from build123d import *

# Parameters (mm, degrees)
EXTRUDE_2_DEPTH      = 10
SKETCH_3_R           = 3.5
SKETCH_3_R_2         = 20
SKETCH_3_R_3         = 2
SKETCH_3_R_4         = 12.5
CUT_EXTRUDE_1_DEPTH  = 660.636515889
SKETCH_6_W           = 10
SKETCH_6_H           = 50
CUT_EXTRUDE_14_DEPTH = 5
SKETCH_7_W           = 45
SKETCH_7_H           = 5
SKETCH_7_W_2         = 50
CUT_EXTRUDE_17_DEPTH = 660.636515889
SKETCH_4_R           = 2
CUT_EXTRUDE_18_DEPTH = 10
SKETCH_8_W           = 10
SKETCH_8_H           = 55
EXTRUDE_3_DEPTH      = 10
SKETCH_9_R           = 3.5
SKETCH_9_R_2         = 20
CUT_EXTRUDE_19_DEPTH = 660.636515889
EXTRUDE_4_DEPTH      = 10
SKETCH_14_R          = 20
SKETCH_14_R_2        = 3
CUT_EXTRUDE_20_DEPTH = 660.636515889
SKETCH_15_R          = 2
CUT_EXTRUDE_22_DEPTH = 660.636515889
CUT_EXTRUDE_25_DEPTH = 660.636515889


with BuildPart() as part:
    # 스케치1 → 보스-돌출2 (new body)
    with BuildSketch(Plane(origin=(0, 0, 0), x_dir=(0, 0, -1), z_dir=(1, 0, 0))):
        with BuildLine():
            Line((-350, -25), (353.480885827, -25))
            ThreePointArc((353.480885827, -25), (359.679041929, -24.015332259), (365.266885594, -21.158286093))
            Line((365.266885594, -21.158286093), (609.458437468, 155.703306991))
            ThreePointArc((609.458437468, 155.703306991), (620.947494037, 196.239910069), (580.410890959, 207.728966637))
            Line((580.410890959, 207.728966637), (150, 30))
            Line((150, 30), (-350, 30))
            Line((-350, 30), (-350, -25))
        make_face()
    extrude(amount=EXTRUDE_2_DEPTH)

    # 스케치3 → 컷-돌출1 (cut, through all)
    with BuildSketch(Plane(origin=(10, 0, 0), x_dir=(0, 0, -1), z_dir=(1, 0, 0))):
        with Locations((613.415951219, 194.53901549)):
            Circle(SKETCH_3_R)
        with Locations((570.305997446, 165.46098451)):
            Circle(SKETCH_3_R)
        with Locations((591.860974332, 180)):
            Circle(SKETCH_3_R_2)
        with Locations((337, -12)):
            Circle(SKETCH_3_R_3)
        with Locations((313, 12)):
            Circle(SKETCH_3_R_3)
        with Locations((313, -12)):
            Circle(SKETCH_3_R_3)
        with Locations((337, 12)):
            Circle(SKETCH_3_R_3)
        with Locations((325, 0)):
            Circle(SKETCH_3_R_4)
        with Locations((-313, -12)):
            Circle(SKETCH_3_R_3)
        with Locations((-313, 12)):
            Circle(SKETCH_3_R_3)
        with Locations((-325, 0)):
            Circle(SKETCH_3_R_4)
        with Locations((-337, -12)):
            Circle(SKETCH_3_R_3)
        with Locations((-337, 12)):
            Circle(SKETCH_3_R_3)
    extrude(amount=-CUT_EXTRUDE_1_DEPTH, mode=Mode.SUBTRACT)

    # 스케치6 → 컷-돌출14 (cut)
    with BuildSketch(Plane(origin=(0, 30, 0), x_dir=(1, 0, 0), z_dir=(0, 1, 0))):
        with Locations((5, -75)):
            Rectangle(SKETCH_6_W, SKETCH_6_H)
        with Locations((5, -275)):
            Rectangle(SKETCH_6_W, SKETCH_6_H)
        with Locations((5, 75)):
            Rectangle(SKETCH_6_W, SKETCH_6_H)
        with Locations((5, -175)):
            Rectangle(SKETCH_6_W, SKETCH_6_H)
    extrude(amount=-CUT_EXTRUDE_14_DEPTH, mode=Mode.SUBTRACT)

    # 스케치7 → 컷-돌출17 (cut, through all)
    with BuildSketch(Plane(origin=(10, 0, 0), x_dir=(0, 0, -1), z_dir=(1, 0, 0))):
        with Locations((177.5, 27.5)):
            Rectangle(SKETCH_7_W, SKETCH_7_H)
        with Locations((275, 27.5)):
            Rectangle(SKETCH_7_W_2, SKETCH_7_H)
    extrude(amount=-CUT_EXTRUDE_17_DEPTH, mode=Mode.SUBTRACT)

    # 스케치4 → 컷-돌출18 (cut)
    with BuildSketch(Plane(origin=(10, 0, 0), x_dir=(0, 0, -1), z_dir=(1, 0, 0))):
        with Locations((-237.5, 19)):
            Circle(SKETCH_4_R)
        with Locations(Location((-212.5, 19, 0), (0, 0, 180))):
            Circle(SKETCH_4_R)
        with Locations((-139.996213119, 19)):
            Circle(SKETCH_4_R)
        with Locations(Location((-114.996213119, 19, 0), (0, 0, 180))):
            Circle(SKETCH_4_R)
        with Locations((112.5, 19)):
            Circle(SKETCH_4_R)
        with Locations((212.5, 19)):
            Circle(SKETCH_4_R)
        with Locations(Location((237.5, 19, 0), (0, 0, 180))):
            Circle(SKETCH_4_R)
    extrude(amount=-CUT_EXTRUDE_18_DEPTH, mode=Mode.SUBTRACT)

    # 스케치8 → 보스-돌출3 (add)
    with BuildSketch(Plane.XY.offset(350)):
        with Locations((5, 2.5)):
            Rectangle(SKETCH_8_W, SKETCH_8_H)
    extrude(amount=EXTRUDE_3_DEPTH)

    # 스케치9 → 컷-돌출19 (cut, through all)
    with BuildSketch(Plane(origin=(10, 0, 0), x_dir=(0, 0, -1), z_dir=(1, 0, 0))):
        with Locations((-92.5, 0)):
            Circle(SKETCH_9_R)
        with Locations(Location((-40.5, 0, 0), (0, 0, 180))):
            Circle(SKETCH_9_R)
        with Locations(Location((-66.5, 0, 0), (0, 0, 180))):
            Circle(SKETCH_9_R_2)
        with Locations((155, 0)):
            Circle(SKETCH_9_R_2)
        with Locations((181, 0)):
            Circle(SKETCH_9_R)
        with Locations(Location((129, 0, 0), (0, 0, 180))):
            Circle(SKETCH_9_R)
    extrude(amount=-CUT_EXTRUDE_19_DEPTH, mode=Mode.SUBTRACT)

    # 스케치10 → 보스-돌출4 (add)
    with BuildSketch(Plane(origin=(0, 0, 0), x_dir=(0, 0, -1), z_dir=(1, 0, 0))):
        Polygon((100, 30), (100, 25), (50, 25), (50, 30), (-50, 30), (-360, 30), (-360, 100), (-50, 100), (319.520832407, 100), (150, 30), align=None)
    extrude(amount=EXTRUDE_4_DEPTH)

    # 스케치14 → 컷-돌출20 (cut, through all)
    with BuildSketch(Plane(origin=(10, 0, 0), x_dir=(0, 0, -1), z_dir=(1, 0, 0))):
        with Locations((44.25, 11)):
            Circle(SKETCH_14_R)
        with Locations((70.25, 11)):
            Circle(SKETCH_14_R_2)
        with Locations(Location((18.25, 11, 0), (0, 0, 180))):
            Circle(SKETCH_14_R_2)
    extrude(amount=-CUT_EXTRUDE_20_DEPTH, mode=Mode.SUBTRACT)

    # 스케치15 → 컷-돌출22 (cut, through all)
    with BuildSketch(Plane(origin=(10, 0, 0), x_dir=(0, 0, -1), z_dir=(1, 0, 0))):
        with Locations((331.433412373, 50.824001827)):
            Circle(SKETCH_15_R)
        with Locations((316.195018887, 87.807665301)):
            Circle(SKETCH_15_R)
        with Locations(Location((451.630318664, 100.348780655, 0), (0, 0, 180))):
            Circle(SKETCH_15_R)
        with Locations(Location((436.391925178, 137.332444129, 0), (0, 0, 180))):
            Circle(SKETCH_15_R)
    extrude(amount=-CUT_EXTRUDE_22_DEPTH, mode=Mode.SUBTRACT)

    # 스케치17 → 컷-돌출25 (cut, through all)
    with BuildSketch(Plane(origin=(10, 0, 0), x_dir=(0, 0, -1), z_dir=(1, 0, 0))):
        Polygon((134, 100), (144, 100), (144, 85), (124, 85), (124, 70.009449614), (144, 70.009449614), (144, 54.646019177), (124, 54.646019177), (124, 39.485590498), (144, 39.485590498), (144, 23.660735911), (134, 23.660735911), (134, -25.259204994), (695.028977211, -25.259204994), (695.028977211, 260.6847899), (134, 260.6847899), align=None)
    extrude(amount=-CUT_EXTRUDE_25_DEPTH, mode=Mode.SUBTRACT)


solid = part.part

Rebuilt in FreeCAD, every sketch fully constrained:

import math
import FreeCAD as App
import Part
import Sketcher


def add_polygon(sketch, points):
    """Adds a closed chain of lines whose ends are joined by coincident constraints."""
    first, n = sketch.GeometryCount, len(points)
    for a, b in zip(points, points[1:] + points[:1]):
        sketch.addGeometry(Part.LineSegment(App.Vector(*a, 0), App.Vector(*b, 0)), False)
    for i in range(n):
        sketch.addConstraint(Sketcher.Constraint("Coincident", first + i, 2, first + (i + 1) % n, 1))

doc = App.newDocument("Part")
body = doc.addObject("PartDesign::Body", "Body")

sketch1 = doc.addObject("Sketcher::SketchObject", "Sketch")
body.addObject(sketch1)
sketch1.AttachmentSupport = (doc.YZ_Plane, [""])
sketch1.MapMode = "FlatFace"
sketch1.addGeometry([
    Part.LineSegment(App.Vector(-25, 350, 0), App.Vector(-25, -353, 0)),
    Part.ArcOfCircle(Part.Circle(App.Vector(-5, -353, 0), App.Vector(0, 0, 1), 20), math.radians(-180), math.radians(-144)),
    Part.LineSegment(App.Vector(-21, -365, 0), App.Vector(156, -609, 0)),
    Part.ArcOfCircle(Part.Circle(App.Vector(182, -595, 0), App.Vector(0, 0, 1), 30), math.radians(-151), math.radians(29)),
    Part.LineSegment(App.Vector(208, -580, 0), App.Vector(30, -150, 0)),
    Part.LineSegment(App.Vector(30, -150, 0), App.Vector(30, 350, 0)),
    Part.LineSegment(App.Vector(30, 350, 0), App.Vector(-25, 350, 0)),
], False)
sketch1.addConstraint([
    Sketcher.Constraint("Tangent", 0, 2, 1, 1),
    Sketcher.Constraint("Coincident", 1, 2, 2, 1),
    Sketcher.Constraint("Coincident", 2, 2, 3, 1),
    Sketcher.Constraint("Coincident", 3, 2, 4, 1),
    Sketcher.Constraint("Coincident", 4, 2, 5, 1),
    Sketcher.Constraint("Coincident", 5, 2, 6, 1),
    Sketcher.Constraint("Coincident", 6, 2, 0, 1),
    Sketcher.Constraint("Vertical", 0),
    Sketcher.Constraint("Vertical", 5),
    Sketcher.Constraint("Horizontal", 6),
    Sketcher.Constraint("Radius", 1, 20.0),
    Sketcher.Constraint("DistanceX", 6, 2, 6, 1, 55.0),
    Sketcher.Constraint("DistanceY", 5, 1, 5, 2, 500.0),
    Sketcher.Constraint("DistanceX", 1, 3, -1, 1, 5.0),
    Sketcher.Constraint("DistanceY", 4, 2, -1, 1, 150.0),
    Sketcher.Constraint("Radius", 3, 29.792739),
    Sketcher.Constraint("DistanceY", 1, 2, 0, 2, 11.786),
    Sketcher.Constraint("DistanceY", 0, 2, 0, 1, 703.480886),
    Sketcher.Constraint("DistanceY", 3, 2, -1, 1, 580.410891),
    Sketcher.Constraint("DistanceY", 3, 3, 1, 3, 241.453778),
    Sketcher.Constraint("DistanceX", 2, 2, 3, 3, 26.01283),
    Sketcher.Constraint("Distance", 2, 301.512085),
])
pad1 = doc.addObject("PartDesign::Pad", "Pad")
body.addObject(pad1)
pad1.Profile = sketch1
pad1.Length = 10

sketch2 = doc.addObject("Sketcher::SketchObject", "Sketch001")
body.addObject(sketch2)
sketch2.AttachmentSupport = (doc.YZ_Plane, [""])
sketch2.MapMode = "FlatFace"
sketch2.AttachmentOffset = App.Placement(App.Vector(0, 0, 10), App.Rotation())
sketch2.addGeometry([
    Part.Circle(App.Vector(194.5, -613.4, 0), App.Vector(0, 0, 1), 3.5),
    Part.Circle(App.Vector(165.5, -570.3, 0), App.Vector(0, 0, 1), 3.5),
    Part.Circle(App.Vector(180, -591.9, 0), App.Vector(0, 0, 1), 20),
    Part.Circle(App.Vector(-12, -337, 0), App.Vector(0, 0, 1), 2),
    Part.Circle(App.Vector(12, -313, 0), App.Vector(0, 0, 1), 2),
    Part.Circle(App.Vector(-12, -313, 0), App.Vector(0, 0, 1), 2),
    Part.Circle(App.Vector(12, -337, 0), App.Vector(0, 0, 1), 2),
    Part.Circle(App.Vector(0, -325, 0), App.Vector(0, 0, 1), 12.5),
    Part.Circle(App.Vector(-12, 313, 0), App.Vector(0, 0, 1), 2),
    Part.Circle(App.Vector(12, 313, 0), App.Vector(0, 0, 1), 2),
    Part.Circle(App.Vector(0, 325, 0), App.Vector(0, 0, 1), 12.5),
    Part.Circle(App.Vector(-12, 337, 0), App.Vector(0, 0, 1), 2),
    Part.Circle(App.Vector(12, 337, 0), App.Vector(0, 0, 1), 2),
], False)
sketch2.addConstraint([
    Sketcher.Constraint("Equal", 0, 1),
    Sketcher.Constraint("Equal", 3, 4),
    Sketcher.Constraint("Equal", 4, 5),
    Sketcher.Constraint("Equal", 5, 6),
    Sketcher.Constraint("Equal", 6, 8),
    Sketcher.Constraint("Equal", 8, 9),
    Sketcher.Constraint("Equal", 7, 10),
    Sketcher.Constraint("Equal", 9, 11),
    Sketcher.Constraint("Equal", 11, 12),
    Sketcher.Constraint("Symmetric", 4, 3, 8, 3, -1, 1),
    Sketcher.Constraint("Symmetric", 5, 3, 9, 3, -1, 1),
    Sketcher.Constraint("Symmetric", 7, 3, 10, 3, -1, 1),
    Sketcher.Constraint("Symmetric", 6, 3, 11, 3, -1, 1),
    Sketcher.Constraint("Symmetric", 3, 3, 12, 3, -1, 1),
    Sketcher.Constraint("Symmetric", 4, 3, 5, 3, -2),
    Sketcher.Constraint("Symmetric", 3, 3, 6, 3, -2),
    Sketcher.Constraint("PointOnObject", 7, 3, -2),
    Sketcher.Constraint("Vertical", 3, 3, 5, 3),
    Sketcher.Constraint("Diameter", 0, 7.0),
    Sketcher.Constraint("Diameter", 2, 40.0),
    Sketcher.Constraint("Diameter", 3, 4.0),
    Sketcher.Constraint("Diameter", 7, 25.0),
    Sketcher.Constraint("DistanceX", -1, 1, 2, 3, 180.0),
    Sketcher.Constraint("DistanceX", 3, 3, -1, 1, 12.0),
    Sketcher.Constraint("DistanceY", 3, 3, -1, 1, 337.0),
    Sketcher.Constraint("DistanceY", 4, 3, -1, 1, 313.0),
    Sketcher.Constraint("DistanceY", 7, 3, -1, 1, 325.0),
    Sketcher.Constraint("DistanceY", 0, 3, -1, 1, 613.415951),
    Sketcher.Constraint("DistanceX", 1, 3, 0, 3, 29.078031),
    Sketcher.Constraint("DistanceX", -1, 1, 0, 3, 194.539015),
    Sketcher.Constraint("DistanceY", 1, 3, -1, 1, 570.305997),
    Sketcher.Constraint("DistanceY", 2, 3, -1, 1, 591.860974),
])
pocket1 = doc.addObject("PartDesign::Pocket", "Pocket")
body.addObject(pocket1)
pocket1.Profile = sketch2
pocket1.Type = "ThroughAll"

sketch3 = doc.addObject("Sketcher::SketchObject", "Sketch002")
body.addObject(sketch3)
sketch3.AttachmentSupport = (doc.XZ_Plane, [""])
sketch3.MapMode = "FlatFace"
sketch3.AttachmentOffset = App.Placement(App.Vector(0, 0, -30), App.Rotation())
add_polygon(sketch3, [(0, 50), (0, 100), (10, 100), (10, 50)])
add_polygon(sketch3, [(0, 250), (0, 300), (10, 300), (10, 250)])
add_polygon(sketch3, [(0, -100), (0, -50), (10, -50), (10, -100)])
add_polygon(sketch3, [(0, 150), (0, 200), (10, 200), (10, 150)])
sketch3.addConstraint([
    Sketcher.Constraint("Vertical", 0),
    Sketcher.Constraint("Horizontal", 1),
    Sketcher.Constraint("Vertical", 2),
    Sketcher.Constraint("Horizontal", 3),
    Sketcher.Constraint("Vertical", 4),
    Sketcher.Constraint("Horizontal", 5),
    Sketcher.Constraint("Vertical", 6),
    Sketcher.Constraint("Horizontal", 7),
    Sketcher.Constraint("Vertical", 8),
    Sketcher.Constraint("Horizontal", 9),
    Sketcher.Constraint("Vertical", 10),
    Sketcher.Constraint("Horizontal", 11),
    Sketcher.Constraint("Vertical", 12),
    Sketcher.Constraint("Horizontal", 13),
    Sketcher.Constraint("Vertical", 14),
    Sketcher.Constraint("Horizontal", 15),
    Sketcher.Constraint("Symmetric", 3, 2, 8, 2, -1, 1),
    Sketcher.Constraint("Symmetric", 1, 2, 10, 2, -1),
    Sketcher.Constraint("PointOnObject", 0, 2, -2),
    Sketcher.Constraint("PointOnObject", 4, 2, -2),
    Sketcher.Constraint("PointOnObject", 12, 2, -2),
    Sketcher.Constraint("Vertical", 2, 2, 5, 2),
    Sketcher.Constraint("Vertical", 10, 2, 13, 2),
    Sketcher.Constraint("Equal", 2, 4),
    Sketcher.Constraint("Equal", 10, 12),
    Sketcher.Constraint("DistanceX", 1, 1, 1, 2, 10.0),
    Sketcher.Constraint("DistanceY", 0, 1, 0, 2, 50.0),
    Sketcher.Constraint("DistanceY", -1, 1, 0, 2, 100.0),
    Sketcher.Constraint("DistanceY", -1, 1, 4, 2, 300.0),
    Sketcher.Constraint("DistanceY", -1, 1, 12, 2, 200.0),
])
pocket2 = doc.addObject("PartDesign::Pocket", "Pocket001")
body.addObject(pocket2)
pocket2.Profile = sketch3
pocket2.Length = 5
pocket2.Reversed = True

sketch4 = doc.addObject("Sketcher::SketchObject", "Sketch003")
body.addObject(sketch4)
sketch4.AttachmentSupport = (doc.YZ_Plane, [""])
sketch4.MapMode = "FlatFace"
sketch4.AttachmentOffset = App.Placement(App.Vector(0, 0, 10), App.Rotation())
add_polygon(sketch4, [(30, -155), (25, -155), (25, -200), (30, -200)])
add_polygon(sketch4, [(30, -250), (25, -250), (25, -300), (30, -300)])
sketch4.addConstraint([
    Sketcher.Constraint("Horizontal", 0),
    Sketcher.Constraint("Vertical", 1),
    Sketcher.Constraint("Horizontal", 2),
    Sketcher.Constraint("Vertical", 3),
    Sketcher.Constraint("Horizontal", 4),
    Sketcher.Constraint("Vertical", 5),
    Sketcher.Constraint("Horizontal", 6),
    Sketcher.Constraint("Vertical", 7),
    Sketcher.Constraint("Vertical", 1, 2, 4, 2),
    Sketcher.Constraint("Vertical", 3, 2, 6, 2),
    Sketcher.Constraint("DistanceX", 0, 2, 0, 1, 5.0),
    Sketcher.Constraint("DistanceY", 1, 2, 1, 1, 45.0),
    Sketcher.Constraint("DistanceY", 5, 2, 5, 1, 50.0),
    Sketcher.Constraint("DistanceX", -1, 1, 0, 2, 25.0),
    Sketcher.Constraint("DistanceY", 0, 2, -1, 1, 155.0),
    Sketcher.Constraint("DistanceY", 4, 2, -1, 1, 250.0),
])
pocket3 = doc.addObject("PartDesign::Pocket", "Pocket002")
body.addObject(pocket3)
pocket3.Profile = sketch4
pocket3.Type = "ThroughAll"

sketch5 = doc.addObject("Sketcher::SketchObject", "Sketch004")
body.addObject(sketch5)
sketch5.AttachmentSupport = (doc.YZ_Plane, [""])
sketch5.MapMode = "FlatFace"
sketch5.AttachmentOffset = App.Placement(App.Vector(0, 0, 10), App.Rotation())
sketch5.addGeometry([
    Part.Circle(App.Vector(19, 237.5, 0), App.Vector(0, 0, 1), 2),
    Part.Circle(App.Vector(19, 212.5, 0), App.Vector(0, 0, 1), 2),
    Part.Circle(App.Vector(19, 140, 0), App.Vector(0, 0, 1), 2),
    Part.Circle(App.Vector(19, 115, 0), App.Vector(0, 0, 1), 2),
    Part.Circle(App.Vector(19, -112.5, 0), App.Vector(0, 0, 1), 2),
    Part.Circle(App.Vector(19, -212.5, 0), App.Vector(0, 0, 1), 2),
    Part.Circle(App.Vector(19, -237.5, 0), App.Vector(0, 0, 1), 2),
], False)
sketch5.addConstraint([
    Sketcher.Constraint("Equal", 0, 1),
    Sketcher.Constraint("Equal", 1, 2),
    Sketcher.Constraint("Equal", 2, 3),
    Sketcher.Constraint("Equal", 3, 4),
    Sketcher.Constraint("Equal", 4, 5),
    Sketcher.Constraint("Equal", 5, 6),
    Sketcher.Constraint("Symmetric", 1, 3, 5, 3, -1),
    Sketcher.Constraint("Symmetric", 0, 3, 6, 3, -1),
    Sketcher.Constraint("Vertical", 0, 3, 1, 3),
    Sketcher.Constraint("Vertical", 1, 3, 2, 3),
    Sketcher.Constraint("Vertical", 2, 3, 3, 3),
    Sketcher.Constraint("Vertical", 3, 3, 4, 3),
    Sketcher.Constraint("Diameter", 0, 4.0),
    Sketcher.Constraint("DistanceX", -1, 1, 0, 3, 19.0),
    Sketcher.Constraint("DistanceY", 1, 3, 0, 3, 25.0),
    Sketcher.Constraint("DistanceY", 3, 3, 2, 3, 25.0),
    Sketcher.Constraint("DistanceY", 4, 3, 1, 3, 325.0),
    Sketcher.Constraint("DistanceY", 5, 3, 4, 3, 100.0),
    Sketcher.Constraint("DistanceY", -1, 1, 2, 3, 139.996213),
])
pocket4 = doc.addObject("PartDesign::Pocket", "Pocket003")
body.addObject(pocket4)
pocket4.Profile = sketch5
pocket4.Length = 10

sketch6 = doc.addObject("Sketcher::SketchObject", "Sketch005")
body.addObject(sketch6)
sketch6.AttachmentSupport = (doc.XY_Plane, [""])
sketch6.MapMode = "FlatFace"
sketch6.AttachmentOffset = App.Placement(App.Vector(0, 0, 350), App.Rotation())
add_polygon(sketch6, [(0, 30), (0, -25), (10, -25), (10, 30)])
sketch6.addConstraint([
    Sketcher.Constraint("Vertical", 0),
    Sketcher.Constraint("Horizontal", 1),
    Sketcher.Constraint("Vertical", 2),
    Sketcher.Constraint("Horizontal", 3),
    Sketcher.Constraint("PointOnObject", 0, 2, -2),
    Sketcher.Constraint("DistanceX", 1, 1, 1, 2, 10.0),
    Sketcher.Constraint("DistanceY", 0, 2, 0, 1, 55.0),
    Sketcher.Constraint("DistanceY", 0, 2, -1, 1, 25.0),
])
pad2 = doc.addObject("PartDesign::Pad", "Pad001")
body.addObject(pad2)
pad2.Profile = sketch6
pad2.Length = 10

sketch7 = doc.addObject("Sketcher::SketchObject", "Sketch006")
body.addObject(sketch7)
sketch7.AttachmentSupport = (doc.YZ_Plane, [""])
sketch7.MapMode = "FlatFace"
sketch7.AttachmentOffset = App.Placement(App.Vector(0, 0, 10), App.Rotation())
sketch7.addGeometry([
    Part.Circle(App.Vector(0, 92.5, 0), App.Vector(0, 0, 1), 3.5),
    Part.Circle(App.Vector(0, 40.5, 0), App.Vector(0, 0, 1), 3.5),
    Part.Circle(App.Vector(0, 66.5, 0), App.Vector(0, 0, 1), 20),
    Part.Circle(App.Vector(0, -155, 0), App.Vector(0, 0, 1), 20),
    Part.Circle(App.Vector(0, -181, 0), App.Vector(0, 0, 1), 3.5),
    Part.Circle(App.Vector(0, -129, 0), App.Vector(0, 0, 1), 3.5),
], False)
sketch7.addConstraint([
    Sketcher.Constraint("Equal", 0, 1),
    Sketcher.Constraint("Equal", 2, 3),
    Sketcher.Constraint("Equal", 1, 4),
    Sketcher.Constraint("Equal", 4, 5),
    Sketcher.Constraint("PointOnObject", 0, 3, -2),
    Sketcher.Constraint("PointOnObject", 1, 3, -2),
    Sketcher.Constraint("PointOnObject", 2, 3, -2),
    Sketcher.Constraint("PointOnObject", 3, 3, -2),
    Sketcher.Constraint("PointOnObject", 4, 3, -2),
    Sketcher.Constraint("PointOnObject", 5, 3, -2),
    Sketcher.Constraint("Diameter", 0, 7.0),
    Sketcher.Constraint("Diameter", 2, 40.0),
    Sketcher.Constraint("DistanceY", 3, 3, -1, 1, 155.0),
    Sketcher.Constraint("DistanceY", 4, 3, -1, 1, 181.0),
    Sketcher.Constraint("DistanceY", 5, 3, -1, 1, 129.0),
    Sketcher.Constraint("DistanceY", 1, 3, 0, 3, 52.0),
    Sketcher.Constraint("DistanceY", 2, 3, 0, 3, 26.0),
    Sketcher.Constraint("DistanceY", -1, 1, 0, 3, 92.5),
])
pocket5 = doc.addObject("PartDesign::Pocket", "Pocket004")
body.addObject(pocket5)
pocket5.Profile = sketch7
pocket5.Type = "ThroughAll"

sketch8 = doc.addObject("Sketcher::SketchObject", "Sketch007")
body.addObject(sketch8)
sketch8.AttachmentSupport = (doc.YZ_Plane, [""])
sketch8.MapMode = "FlatFace"
add_polygon(sketch8, [(25, -100), (30, -100), (30, -150), (100, -320), (100, 360), (30, 360), (30, -50), (25, -50)])
sketch8.addConstraint([
    Sketcher.Constraint("Horizontal", 0),
    Sketcher.Constraint("Vertical", 1),
    Sketcher.Constraint("Vertical", 3),
    Sketcher.Constraint("Horizontal", 4),
    Sketcher.Constraint("Vertical", 5),
    Sketcher.Constraint("Horizontal", 6),
    Sketcher.Constraint("Vertical", 7),
    Sketcher.Constraint("Vertical", 1, 2, 4, 2),
    Sketcher.Constraint("Equal", 1, 7),
    Sketcher.Constraint("DistanceX", 0, 1, 0, 2, 5.0),
    Sketcher.Constraint("DistanceX", 4, 2, 4, 1, 70.0),
    Sketcher.Constraint("DistanceY", 1, 2, 1, 1, 50.0),
    Sketcher.Constraint("DistanceY", 5, 2, 5, 1, 410.0),
    Sketcher.Constraint("DistanceX", -1, 1, 0, 2, 30.0),
    Sketcher.Constraint("DistanceY", 0, 2, -1, 1, 100.0),
    Sketcher.Constraint("Distance", 2, 183.404778),
])
pad3 = doc.addObject("PartDesign::Pad", "Pad002")
body.addObject(pad3)
pad3.Profile = sketch8
pad3.Length = 10

sketch9 = doc.addObject("Sketcher::SketchObject", "Sketch008")
body.addObject(sketch9)
sketch9.AttachmentSupport = (doc.YZ_Plane, [""])
sketch9.MapMode = "FlatFace"
sketch9.AttachmentOffset = App.Placement(App.Vector(0, 0, 10), App.Rotation())
sketch9.addGeometry([
    Part.Circle(App.Vector(11, -44.2, 0), App.Vector(0, 0, 1), 20),
    Part.Circle(App.Vector(11, -70.2, 0), App.Vector(0, 0, 1), 3),
    Part.Circle(App.Vector(11, -18.2, 0), App.Vector(0, 0, 1), 3),
], False)
sketch9.addConstraint([
    Sketcher.Constraint("Equal", 1, 2),
    Sketcher.Constraint("Vertical", 0, 3, 1, 3),
    Sketcher.Constraint("Vertical", 1, 3, 2, 3),
    Sketcher.Constraint("Diameter", 0, 40.0),
    Sketcher.Constraint("Diameter", 1, 6.0),
    Sketcher.Constraint("DistanceX", -1, 1, 0, 3, 11.0),
    Sketcher.Constraint("DistanceY", 1, 3, 0, 3, 26.0),
    Sketcher.Constraint("DistanceY", 0, 3, 2, 3, 26.0),
    Sketcher.Constraint("DistanceY", 0, 3, -1, 1, 44.25),
])
pocket6 = doc.addObject("PartDesign::Pocket", "Pocket005")
body.addObject(pocket6)
pocket6.Profile = sketch9
pocket6.Type = "ThroughAll"

sketch10 = doc.addObject("Sketcher::SketchObject", "Sketch009")
body.addObject(sketch10)
sketch10.AttachmentSupport = (doc.YZ_Plane, [""])
sketch10.MapMode = "FlatFace"
sketch10.AttachmentOffset = App.Placement(App.Vector(0, 0, 10), App.Rotation())
sketch10.addGeometry([
    Part.Circle(App.Vector(50.8, -331.4, 0), App.Vector(0, 0, 1), 2),
    Part.Circle(App.Vector(87.8, -316.2, 0), App.Vector(0, 0, 1), 2),
    Part.Circle(App.Vector(100.3, -451.6, 0), App.Vector(0, 0, 1), 2),
    Part.Circle(App.Vector(137.3, -436.4, 0), App.Vector(0, 0, 1), 2),
], False)
sketch10.addConstraint([
    Sketcher.Constraint("Equal", 0, 1),
    Sketcher.Constraint("Equal", 1, 2),
    Sketcher.Constraint("Equal", 2, 3),
    Sketcher.Constraint("Diameter", 0, 4.0),
    Sketcher.Constraint("DistanceX", -1, 1, 0, 3, 50.824002),
    Sketcher.Constraint("DistanceY", 2, 3, 1, 3, 135.4353),
    Sketcher.Constraint("DistanceY", 1, 3, -1, 1, 316.195019),
    Sketcher.Constraint("DistanceX", -1, 1, 2, 3, 100.348781),
    Sketcher.Constraint("DistanceX", 1, 3, 3, 3, 49.524779),
    Sketcher.Constraint("DistanceY", 0, 3, -1, 1, 331.433412),
    Sketcher.Constraint("DistanceX", -1, 1, 1, 3, 87.807665),
    Sketcher.Constraint("DistanceY", 3, 3, -1, 1, 436.391925),
])
pocket7 = doc.addObject("PartDesign::Pocket", "Pocket006")
body.addObject(pocket7)
pocket7.Profile = sketch10
pocket7.Type = "ThroughAll"

sketch11 = doc.addObject("Sketcher::SketchObject", "Sketch010")
body.addObject(sketch11)
sketch11.AttachmentSupport = (doc.YZ_Plane, [""])
sketch11.MapMode = "FlatFace"
sketch11.AttachmentOffset = App.Placement(App.Vector(0, 0, 10), App.Rotation())
add_polygon(sketch11, [(100, -134), (100, -144), (85, -144), (85, -124), (70, -124), (70, -144), (55, -144), (55, -124), (39, -124), (39, -144), (24, -144), (24, -134), (-25, -134), (-25, -695), (261, -695), (261, -134)])
sketch11.addConstraint([
    Sketcher.Constraint("Vertical", 0),
    Sketcher.Constraint("Horizontal", 1),
    Sketcher.Constraint("Vertical", 2),
    Sketcher.Constraint("Horizontal", 3),
    Sketcher.Constraint("Vertical", 4),
    Sketcher.Constraint("Horizontal", 5),
    Sketcher.Constraint("Vertical", 6),
    Sketcher.Constraint("Horizontal", 7),
    Sketcher.Constraint("Vertical", 8),
    Sketcher.Constraint("Horizontal", 9),
    Sketcher.Constraint("Vertical", 10),
    Sketcher.Constraint("Horizontal", 11),
    Sketcher.Constraint("Vertical", 12),
    Sketcher.Constraint("Horizontal", 13),
    Sketcher.Constraint("Vertical", 14),
    Sketcher.Constraint("Horizontal", 15),
    Sketcher.Constraint("Horizontal", 1, 2, 4, 2),
    Sketcher.Constraint("Horizontal", 3, 2, 6, 2),
    Sketcher.Constraint("Horizontal", 5, 2, 8, 2),
    Sketcher.Constraint("Horizontal", 11, 2, 14, 2),
    Sketcher.Constraint("DistanceX", 1, 2, 1, 1, 15.0),
    Sketcher.Constraint("DistanceY", 0, 2, 0, 1, 10.0),
    Sketcher.Constraint("DistanceY", 2, 1, 2, 2, 20.0),
    Sketcher.Constraint("DistanceX", -1, 1, 0, 2, 100.0),
    Sketcher.Constraint("DistanceY", 0, 2, -1, 1, 144.0),
    Sketcher.Constraint("DistanceX", 3, 2, 3, 1, 14.99055),
    Sketcher.Constraint("DistanceX", 5, 2, 5, 1, 15.36343),
    Sketcher.Constraint("DistanceX", 7, 2, 7, 1, 15.160429),
    Sketcher.Constraint("DistanceX", 11, 2, 11, 1, 48.919941),
    Sketcher.Constraint("DistanceX", 15, 2, 15, 1, 160.68479),
    Sketcher.Constraint("DistanceX", 9, 2, 9, 1, 15.824855),
    Sketcher.Constraint("DistanceY", 12, 2, 12, 1, 561.028977),
])
pocket8 = doc.addObject("PartDesign::Pocket", "Pocket007")
body.addObject(pocket8)
pocket8.Profile = sketch11
pocket8.Type = "ThroughAll"

doc.recompute()
